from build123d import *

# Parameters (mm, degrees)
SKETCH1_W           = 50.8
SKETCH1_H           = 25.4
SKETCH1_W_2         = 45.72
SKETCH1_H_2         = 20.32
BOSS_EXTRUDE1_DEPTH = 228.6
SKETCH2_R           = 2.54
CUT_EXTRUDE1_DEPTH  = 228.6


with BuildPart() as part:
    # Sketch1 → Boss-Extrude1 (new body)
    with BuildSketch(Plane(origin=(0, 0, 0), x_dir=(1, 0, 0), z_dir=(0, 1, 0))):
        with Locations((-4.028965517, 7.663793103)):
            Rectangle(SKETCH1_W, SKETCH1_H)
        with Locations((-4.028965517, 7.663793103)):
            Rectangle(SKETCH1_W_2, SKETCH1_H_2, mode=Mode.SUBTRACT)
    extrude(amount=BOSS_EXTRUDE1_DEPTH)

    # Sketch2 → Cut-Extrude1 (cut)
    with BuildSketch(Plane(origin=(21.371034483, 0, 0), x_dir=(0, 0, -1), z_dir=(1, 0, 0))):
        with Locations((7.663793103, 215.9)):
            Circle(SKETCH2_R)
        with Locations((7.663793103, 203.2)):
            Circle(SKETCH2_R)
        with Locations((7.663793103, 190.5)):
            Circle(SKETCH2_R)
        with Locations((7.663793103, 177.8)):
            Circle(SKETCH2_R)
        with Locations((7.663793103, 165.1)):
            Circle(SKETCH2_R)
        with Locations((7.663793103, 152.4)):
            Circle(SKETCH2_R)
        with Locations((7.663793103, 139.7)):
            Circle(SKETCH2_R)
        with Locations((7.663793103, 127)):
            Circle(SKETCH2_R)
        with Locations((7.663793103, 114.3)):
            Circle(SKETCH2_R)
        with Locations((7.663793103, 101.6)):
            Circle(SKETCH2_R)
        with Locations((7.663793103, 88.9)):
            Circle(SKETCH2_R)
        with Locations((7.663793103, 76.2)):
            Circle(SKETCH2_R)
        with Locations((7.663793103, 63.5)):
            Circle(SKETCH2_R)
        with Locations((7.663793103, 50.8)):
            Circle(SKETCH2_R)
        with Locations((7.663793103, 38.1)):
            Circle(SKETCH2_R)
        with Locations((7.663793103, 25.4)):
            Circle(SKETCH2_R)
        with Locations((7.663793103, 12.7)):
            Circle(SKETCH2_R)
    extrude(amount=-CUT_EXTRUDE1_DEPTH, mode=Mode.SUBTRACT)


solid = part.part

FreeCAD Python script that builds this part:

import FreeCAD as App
import Part
import Sketcher
Q = App.Units.Quantity

doc = App.newDocument("Part")
body = doc.addObject("PartDesign::Body", "Body")

# Sketch on XZ plane
sketch1 = body.newObject("Sketcher::SketchObject", "Sketch")
sketch1.AttachmentSupport = (doc.getObject("XZ_Plane"), [""])
sketch1.MapMode = "FlatFace"
sketch1.addGeometry([
    Part.LineSegment(App.Vector(-29, -20, 0), App.Vector(-29, 5, 0)),  # 0
    Part.LineSegment(App.Vector(-29, 5, 0), App.Vector(21, 5, 0)),  # 1
    Part.LineSegment(App.Vector(21, 5, 0), App.Vector(21, -20, 0)),  # 2
    Part.LineSegment(App.Vector(21, -20, 0), App.Vector(-29, -20, 0)),  # 3
    Part.LineSegment(App.Vector(19, 2, 0), App.Vector(-27, 2, 0)),  # 4
    Part.LineSegment(App.Vector(-27, 2, 0), App.Vector(-27, -18, 0)),  # 5
    Part.LineSegment(App.Vector(-27, -18, 0), App.Vector(19, -18, 0)),  # 6
    Part.LineSegment(App.Vector(19, -18, 0), App.Vector(19, 2, 0)),  # 7
], False)
sketch1.addConstraint([
    Sketcher.Constraint("Coincident", 0, 2, 1, 1),
    Sketcher.Constraint("Coincident", 1, 2, 2, 1),
    Sketcher.Constraint("Coincident", 2, 2, 3, 1),
    Sketcher.Constraint("Coincident", 3, 2, 0, 1),
    Sketcher.Constraint("Coincident", 4, 2, 5, 1),
    Sketcher.Constraint("Coincident", 5, 2, 6, 1),
    Sketcher.Constraint("Coincident", 6, 2, 7, 1),
    Sketcher.Constraint("Coincident", 7, 2, 4, 1),
    Sketcher.Constraint("Vertical", 0),
    Sketcher.Constraint("Horizontal", 1),
    Sketcher.Constraint("Vertical", 2),
    Sketcher.Constraint("Horizontal", 3),
    Sketcher.Constraint("Horizontal", 4),
    Sketcher.Constraint("Vertical", 5),
    Sketcher.Constraint("Horizontal", 6),
    Sketcher.Constraint("Vertical", 7),
    Sketcher.Constraint("DistanceX", 1, 1, 1, 2, Q("2 in")),
    Sketcher.Constraint("DistanceY", 0, 1, 0, 2, Q("1 in")),
    Sketcher.Constraint("DistanceX", 4, 2, 4, 1, Q("1.8 in")),
    Sketcher.Constraint("DistanceY", 5, 2, 5, 1, Q("0.8 in")),
    Sketcher.Constraint("DistanceX", 0, 2, 4, 2, Q("0.1 in")),
    Sketcher.Constraint("DistanceY", 4, 2, 0, 2, Q("0.1 in")),
    Sketcher.Constraint("DistanceX", 0, 2, -1, 1, Q("29.428966 mm")),
    Sketcher.Constraint("DistanceY", -1, 1, 0, 2, Q("5.036207 mm")),
])
pad1 = body.newObject("PartDesign::Pad", "Pad")
pad1.Profile = sketch1
pad1.Length = Q("9 in")
pad1.Reversed = True

# Sketch on YZ plane
sketch2 = body.newObject("Sketcher::SketchObject", "Sketch001")
sketch2.AttachmentSupport = (doc.getObject("YZ_Plane"), [""])
sketch2.MapMode = "FlatFace"
sketch2.AttachmentOffset = App.Placement(App.Vector(0, 0, 21.371034), App.Rotation())
sketch2.addGeometry([
    Part.Circle(App.Vector(215.9, -7.7, 0), App.Vector(0, 0, 1), 2.5),  # 0
    Part.Circle(App.Vector(203.2, -7.7, 0), App.Vector(0, 0, 1), 2.5),  # 1
    Part.Circle(App.Vector(190.5, -7.7, 0), App.Vector(0, 0, 1), 2.5),  # 2
    Part.Circle(App.Vector(177.8, -7.7, 0), App.Vector(0, 0, 1), 2.5),  # 3
    Part.Circle(App.Vector(165.1, -7.7, 0), App.Vector(0, 0, 1), 2.5),  # 4
    Part.Circle(App.Vector(152.4, -7.7, 0), App.Vector(0, 0, 1), 2.5),  # 5
    Part.Circle(App.Vector(139.7, -7.7, 0), App.Vector(0, 0, 1), 2.5),  # 6
    Part.Circle(App.Vector(127, -7.7, 0), App.Vector(0, 0, 1), 2.5),  # 7
    Part.Circle(App.Vector(114.3, -7.7, 0), App.Vector(0, 0, 1), 2.5),  # 8
    Part.Circle(App.Vector(101.6, -7.7, 0), App.Vector(0, 0, 1), 2.5),  # 9
    Part.Circle(App.Vector(88.9, -7.7, 0), App.Vector(0, 0, 1), 2.5),  # 10
    Part.Circle(App.Vector(76.2, -7.7, 0), App.Vector(0, 0, 1), 2.5),  # 11
    Part.Circle(App.Vector(63.5, -7.7, 0), App.Vector(0, 0, 1), 2.5),  # 12
    Part.Circle(App.Vector(50.8, -7.7, 0), App.Vector(0, 0, 1), 2.5),  # 13
    Part.Circle(App.Vector(38.1, -7.7, 0), App.Vector(0, 0, 1), 2.5),  # 14
    Part.Circle(App.Vector(25.4, -7.7, 0), App.Vector(0, 0, 1), 2.5),  # 15
    Part.Circle(App.Vector(12.7, -7.7, 0), App.Vector(0, 0, 1), 2.5),  # 16
], False)
sketch2.addConstraint([
    Sketcher.Constraint("Equal", 0, 1),
    Sketcher.Constraint("Equal", 1, 2),
    Sketcher.Constraint("Equal", 2, 3),
    Sketcher.Constraint("Equal", 3, 4),
    Sketcher.Constraint("Equal", 4, 5),
    Sketcher.Constraint("Equal", 5, 6),
    Sketcher.Constraint("Equal", 6, 7),
    Sketcher.Constraint("Equal", 7, 8),
    Sketcher.Constraint("Equal", 8, 9),
    Sketcher.Constraint("Equal", 9, 10),
    Sketcher.Constraint("Equal", 10, 11),
    Sketcher.Constraint("Equal", 11, 12),
    Sketcher.Constraint("Equal", 12, 13),
    Sketcher.Constraint("Equal", 13, 14),
    Sketcher.Constraint("Equal", 14, 15),
    Sketcher.Constraint("Equal", 15, 16),
    Sketcher.Constraint("Horizontal", 0, 3, 1, 3),
    Sketcher.Constraint("Horizontal", 1, 3, 2, 3),
    Sketcher.Constraint("Horizontal", 2, 3, 3, 3),
    Sketcher.Constraint("Horizontal", 3, 3, 4, 3),
    Sketcher.Constraint("Horizontal", 4, 3, 5, 3),
    Sketcher.Constraint("Horizontal", 5, 3, 6, 3),
    Sketcher.Constraint("Horizontal", 6, 3, 7, 3),
    Sketcher.Constraint("Horizontal", 7, 3, 8, 3),
    Sketcher.Constraint("Horizontal", 8, 3, 9, 3),
    Sketcher.Constraint("Horizontal", 9, 3, 10, 3),
    Sketcher.Constraint("Horizontal", 10, 3, 11, 3),
    Sketcher.Constraint("Horizontal", 11, 3, 12, 3),
    Sketcher.Constraint("Horizontal", 12, 3, 13, 3),
    Sketcher.Constraint("Horizontal", 13, 3, 14, 3),
    Sketcher.Constraint("Horizontal", 14, 3, 15, 3),
    Sketcher.Constraint("Horizontal", 15, 3, 16, 3),
    Sketcher.Constraint("Diameter", 0, Q("0.2 in")),
    Sketcher.Constraint("DistanceX", -1, 1, 1, 3, Q("8 in")),
    Sketcher.Constraint("DistanceX", -1, 1, 3, 3, Q("7 in")),
    Sketcher.Constraint("DistanceX", -1, 1, 5, 3, Q("6 in")),
    Sketcher.Constraint("DistanceX", -1, 1, 7, 3, Q("5 in")),
    Sketcher.Constraint("DistanceX", -1, 1, 9, 3, Q("4 in")),
    Sketcher.Constraint("DistanceX", -1, 1, 11, 3, Q("3 in")),
    Sketcher.Constraint("DistanceX", -1, 1, 13, 3, Q("2 in")),
    Sketcher.Constraint("DistanceX", -1, 1, 15, 3, Q("1 in")),
    Sketcher.Constraint("DistanceX", 2, 3, 0, 3, Q("1 in")),
    Sketcher.Constraint("DistanceX", 4, 3, 2, 3, Q("1 in")),
    Sketcher.Constraint("DistanceX", 6, 3, 4, 3, Q("1 in")),
    Sketcher.Constraint("DistanceX", 8, 3, 6, 3, Q("1 in")),
    Sketcher.Constraint("DistanceX", 10, 3, 8, 3, Q("1 in")),
    Sketcher.Constraint("DistanceX", 12, 3, 10, 3, Q("1 in")),
    Sketcher.Constraint("DistanceX", 14, 3, 12, 3, Q("1 in")),
    Sketcher.Constraint("DistanceX", 16, 3, 14, 3, Q("1 in")),
    Sketcher.Constraint("DistanceX", -1, 1, 0, 3, Q("8.5 in")),
    Sketcher.Constraint("DistanceY", 0, 3, -1, 1, Q("7.663793 mm")),
])
pocket1 = body.newObject("PartDesign::Pocket", "Pocket")
pocket1.Profile = sketch2
pocket1.Length = Q("9 in")

doc.recompute()
